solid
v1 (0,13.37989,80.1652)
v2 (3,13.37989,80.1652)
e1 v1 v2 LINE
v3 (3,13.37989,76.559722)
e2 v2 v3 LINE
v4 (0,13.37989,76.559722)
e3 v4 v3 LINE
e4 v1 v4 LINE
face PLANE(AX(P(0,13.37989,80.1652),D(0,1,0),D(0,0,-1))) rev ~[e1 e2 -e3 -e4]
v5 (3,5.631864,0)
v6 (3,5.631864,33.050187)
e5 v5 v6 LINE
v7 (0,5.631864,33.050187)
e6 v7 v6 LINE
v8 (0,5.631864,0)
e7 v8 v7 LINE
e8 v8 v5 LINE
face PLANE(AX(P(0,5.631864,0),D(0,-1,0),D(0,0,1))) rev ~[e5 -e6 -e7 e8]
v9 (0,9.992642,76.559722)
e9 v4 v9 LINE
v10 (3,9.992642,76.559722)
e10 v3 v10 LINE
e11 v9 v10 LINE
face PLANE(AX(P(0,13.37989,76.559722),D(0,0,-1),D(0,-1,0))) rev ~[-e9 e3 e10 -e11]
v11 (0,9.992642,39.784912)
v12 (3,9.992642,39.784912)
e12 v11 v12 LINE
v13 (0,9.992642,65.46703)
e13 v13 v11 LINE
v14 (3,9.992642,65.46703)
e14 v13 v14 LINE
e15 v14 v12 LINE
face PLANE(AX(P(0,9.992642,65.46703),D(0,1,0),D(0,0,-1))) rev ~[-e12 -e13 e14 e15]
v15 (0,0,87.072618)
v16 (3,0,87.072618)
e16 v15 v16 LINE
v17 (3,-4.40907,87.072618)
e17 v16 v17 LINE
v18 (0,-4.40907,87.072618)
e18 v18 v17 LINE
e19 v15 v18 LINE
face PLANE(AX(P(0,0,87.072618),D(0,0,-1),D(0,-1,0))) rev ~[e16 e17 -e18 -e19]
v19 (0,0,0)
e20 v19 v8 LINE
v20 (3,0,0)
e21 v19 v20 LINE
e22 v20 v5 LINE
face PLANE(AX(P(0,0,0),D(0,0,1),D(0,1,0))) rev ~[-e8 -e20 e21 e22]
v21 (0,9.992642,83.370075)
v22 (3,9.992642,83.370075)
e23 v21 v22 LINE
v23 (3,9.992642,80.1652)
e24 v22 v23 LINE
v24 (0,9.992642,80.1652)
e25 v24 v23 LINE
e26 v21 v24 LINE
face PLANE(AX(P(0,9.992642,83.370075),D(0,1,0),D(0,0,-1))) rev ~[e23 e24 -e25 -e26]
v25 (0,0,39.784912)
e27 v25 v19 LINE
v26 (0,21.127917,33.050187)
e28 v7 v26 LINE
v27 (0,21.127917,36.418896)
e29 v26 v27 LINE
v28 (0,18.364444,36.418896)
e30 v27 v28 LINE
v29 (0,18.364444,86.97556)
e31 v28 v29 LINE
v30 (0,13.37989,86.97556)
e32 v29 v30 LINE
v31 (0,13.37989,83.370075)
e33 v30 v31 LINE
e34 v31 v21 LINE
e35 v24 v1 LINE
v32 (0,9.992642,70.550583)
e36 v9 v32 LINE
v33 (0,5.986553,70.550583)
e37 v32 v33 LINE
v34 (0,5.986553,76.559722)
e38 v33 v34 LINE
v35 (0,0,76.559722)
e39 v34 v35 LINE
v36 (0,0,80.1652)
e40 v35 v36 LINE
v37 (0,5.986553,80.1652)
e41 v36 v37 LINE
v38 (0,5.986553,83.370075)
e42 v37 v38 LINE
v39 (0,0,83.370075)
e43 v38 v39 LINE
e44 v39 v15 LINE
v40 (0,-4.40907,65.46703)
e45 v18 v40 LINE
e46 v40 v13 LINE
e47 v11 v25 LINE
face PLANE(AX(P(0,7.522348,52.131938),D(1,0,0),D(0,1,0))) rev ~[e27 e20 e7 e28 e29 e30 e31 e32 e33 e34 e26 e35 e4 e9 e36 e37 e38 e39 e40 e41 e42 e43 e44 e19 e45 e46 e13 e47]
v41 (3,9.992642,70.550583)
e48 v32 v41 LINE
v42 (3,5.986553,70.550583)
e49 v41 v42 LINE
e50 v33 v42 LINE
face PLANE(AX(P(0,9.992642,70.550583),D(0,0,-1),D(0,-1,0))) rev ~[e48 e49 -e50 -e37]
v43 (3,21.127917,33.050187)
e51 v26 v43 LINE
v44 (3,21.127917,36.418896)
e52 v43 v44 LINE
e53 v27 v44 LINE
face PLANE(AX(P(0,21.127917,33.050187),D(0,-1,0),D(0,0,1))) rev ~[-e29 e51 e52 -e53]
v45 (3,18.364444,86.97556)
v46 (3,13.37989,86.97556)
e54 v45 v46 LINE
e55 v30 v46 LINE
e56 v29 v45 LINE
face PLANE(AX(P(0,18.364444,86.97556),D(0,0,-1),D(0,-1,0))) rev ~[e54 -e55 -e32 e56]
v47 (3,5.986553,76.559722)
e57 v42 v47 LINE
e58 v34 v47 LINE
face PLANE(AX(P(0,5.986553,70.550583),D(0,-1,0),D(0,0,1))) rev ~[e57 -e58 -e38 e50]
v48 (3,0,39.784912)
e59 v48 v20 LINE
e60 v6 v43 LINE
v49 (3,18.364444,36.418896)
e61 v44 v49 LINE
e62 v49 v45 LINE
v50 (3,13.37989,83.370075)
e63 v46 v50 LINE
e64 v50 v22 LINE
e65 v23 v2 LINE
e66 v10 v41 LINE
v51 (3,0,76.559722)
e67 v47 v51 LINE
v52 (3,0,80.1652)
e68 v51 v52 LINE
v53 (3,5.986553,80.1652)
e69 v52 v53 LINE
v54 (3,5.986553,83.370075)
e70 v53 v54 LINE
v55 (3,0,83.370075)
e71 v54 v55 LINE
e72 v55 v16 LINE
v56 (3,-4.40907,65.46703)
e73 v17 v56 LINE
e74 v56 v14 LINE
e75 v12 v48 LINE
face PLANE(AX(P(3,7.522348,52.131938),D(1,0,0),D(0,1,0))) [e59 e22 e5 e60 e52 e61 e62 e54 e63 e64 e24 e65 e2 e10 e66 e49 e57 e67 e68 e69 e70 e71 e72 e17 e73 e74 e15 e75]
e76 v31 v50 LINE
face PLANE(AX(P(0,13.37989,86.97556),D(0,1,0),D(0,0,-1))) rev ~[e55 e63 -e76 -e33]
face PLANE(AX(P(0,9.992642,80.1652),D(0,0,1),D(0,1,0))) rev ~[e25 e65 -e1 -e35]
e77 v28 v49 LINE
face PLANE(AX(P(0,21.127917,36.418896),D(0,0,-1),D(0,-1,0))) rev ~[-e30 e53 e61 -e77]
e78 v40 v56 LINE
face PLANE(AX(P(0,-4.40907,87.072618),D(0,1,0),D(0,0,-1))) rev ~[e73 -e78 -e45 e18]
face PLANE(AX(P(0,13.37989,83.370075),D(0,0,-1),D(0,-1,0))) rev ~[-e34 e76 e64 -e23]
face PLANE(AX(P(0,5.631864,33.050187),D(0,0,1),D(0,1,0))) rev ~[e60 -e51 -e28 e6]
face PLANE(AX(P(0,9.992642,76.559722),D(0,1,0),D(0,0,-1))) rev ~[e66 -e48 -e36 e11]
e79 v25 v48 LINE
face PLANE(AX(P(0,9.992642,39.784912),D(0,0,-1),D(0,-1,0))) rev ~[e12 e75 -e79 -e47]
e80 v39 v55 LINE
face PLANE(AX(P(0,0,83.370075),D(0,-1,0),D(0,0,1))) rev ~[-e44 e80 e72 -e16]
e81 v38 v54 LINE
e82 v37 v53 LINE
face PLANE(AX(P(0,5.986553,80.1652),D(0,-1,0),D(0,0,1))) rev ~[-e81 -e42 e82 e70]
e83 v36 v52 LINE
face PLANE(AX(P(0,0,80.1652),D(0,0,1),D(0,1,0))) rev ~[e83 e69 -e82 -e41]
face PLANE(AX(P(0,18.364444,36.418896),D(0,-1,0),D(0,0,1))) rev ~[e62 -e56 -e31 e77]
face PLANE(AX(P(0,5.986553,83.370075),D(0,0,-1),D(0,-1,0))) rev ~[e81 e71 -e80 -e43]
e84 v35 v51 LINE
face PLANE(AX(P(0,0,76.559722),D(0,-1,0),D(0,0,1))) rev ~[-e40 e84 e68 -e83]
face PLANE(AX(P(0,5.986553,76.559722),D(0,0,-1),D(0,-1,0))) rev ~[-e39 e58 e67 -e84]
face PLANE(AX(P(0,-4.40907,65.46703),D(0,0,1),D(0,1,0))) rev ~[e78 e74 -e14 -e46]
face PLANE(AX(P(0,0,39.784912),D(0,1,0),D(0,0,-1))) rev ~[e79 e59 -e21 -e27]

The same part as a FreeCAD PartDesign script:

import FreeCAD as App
import Part
import Sketcher
from FreeCAD import Vector

doc = App.newDocument("Part")
body = doc.addObject("PartDesign::Body", "Body")

sketch1 = doc.addObject("Sketcher::SketchObject", "Sketch")
body.addObject(sketch1)
sketch1.AttachmentSupport = (doc.YZ_Plane, [""])
sketch1.MapMode = "FlatFace"
sketch1.addGeometry(Part.LineSegment(Vector(0, 39.8, 0), Vector(0, 0, 0)), False)
sketch1.addGeometry(Part.LineSegment(Vector(0, 0, 0), Vector(5.6, 0, 0)), False)
sketch1.addGeometry(Part.LineSegment(Vector(5.6, 0, 0), Vector(5.6, 33.1, 0)), False)
sketch1.addGeometry(Part.LineSegment(Vector(5.6, 33.1, 0), Vector(21.1, 33.1, 0)), False)
sketch1.addGeometry(Part.LineSegment(Vector(21.1, 33.1, 0), Vector(21.1, 36.4, 0)), False)
sketch1.addGeometry(Part.LineSegment(Vector(21.1, 36.4, 0), Vector(18.4, 36.4, 0)), False)
sketch1.addGeometry(Part.LineSegment(Vector(18.4, 36.4, 0), Vector(18.4, 87, 0)), False)
sketch1.addGeometry(Part.LineSegment(Vector(18.4, 87, 0), Vector(13.4, 87, 0)), False)
sketch1.addGeometry(Part.LineSegment(Vector(13.4, 87, 0), Vector(13.4, 83.4, 0)), False)
sketch1.addGeometry(Part.LineSegment(Vector(13.4, 83.4, 0), Vector(10, 83.4, 0)), False)
sketch1.addGeometry(Part.LineSegment(Vector(10, 83.4, 0), Vector(10, 80.2, 0)), False)
sketch1.addGeometry(Part.LineSegment(Vector(10, 80.2, 0), Vector(13.4, 80.2, 0)), False)
sketch1.addGeometry(Part.LineSegment(Vector(13.4, 80.2, 0), Vector(13.4, 76.6, 0)), False)
sketch1.addGeometry(Part.LineSegment(Vector(13.4, 76.6, 0), Vector(10, 76.6, 0)), False)
sketch1.addGeometry(Part.LineSegment(Vector(10, 76.6, 0), Vector(10, 70.6, 0)), False)
sketch1.addGeometry(Part.LineSegment(Vector(10, 70.6, 0), Vector(6, 70.6, 0)), False)
sketch1.addGeometry(Part.LineSegment(Vector(6, 70.6, 0), Vector(6, 76.6, 0)), False)
sketch1.addGeometry(Part.LineSegment(Vector(6, 76.6, 0), Vector(0, 76.6, 0)), False)
sketch1.addGeometry(Part.LineSegment(Vector(0, 76.6, 0), Vector(0, 80.2, 0)), False)
sketch1.addGeometry(Part.LineSegment(Vector(0, 80.2, 0), Vector(6, 80.2, 0)), False)
sketch1.addGeometry(Part.LineSegment(Vector(6, 80.2, 0), Vector(6, 83.4, 0)), False)
sketch1.addGeometry(Part.LineSegment(Vector(6, 83.4, 0), Vector(0, 83.4, 0)), False)
sketch1.addGeometry(Part.LineSegment(Vector(0, 83.4, 0), Vector(0, 87.1, 0)), False)
sketch1.addGeometry(Part.LineSegment(Vector(0, 87.1, 0), Vector(-4.4, 87.1, 0)), False)
sketch1.addGeometry(Part.LineSegment(Vector(-4.4, 87.1, 0), Vector(-4.4, 65.5, 0)), False)
sketch1.addGeometry(Part.LineSegment(Vector(-4.4, 65.5, 0), Vector(10, 65.5, 0)), False)
sketch1.addGeometry(Part.LineSegment(Vector(10, 65.5, 0), Vector(10, 39.8, 0)), False)
sketch1.addGeometry(Part.LineSegment(Vector(10, 39.8, 0), Vector(0, 39.8, 0)), False)
sketch1.addConstraint(Sketcher.Constraint("Coincident", 0, 2, 1, 1))
sketch1.addConstraint(Sketcher.Constraint("Coincident", 1, 2, 2, 1))
sketch1.addConstraint(Sketcher.Constraint("Coincident", 2, 2, 3, 1))
sketch1.addConstraint(Sketcher.Constraint("Coincident", 3, 2, 4, 1))
sketch1.addConstraint(Sketcher.Constraint("Coincident", 4, 2, 5, 1))
sketch1.addConstraint(Sketcher.Constraint("Coincident", 5, 2, 6, 1))
sketch1.addConstraint(Sketcher.Constraint("Coincident", 6, 2, 7, 1))
sketch1.addConstraint(Sketcher.Constraint("Coincident", 7, 2, 8, 1))
sketch1.addConstraint(Sketcher.Constraint("Coincident", 8, 2, 9, 1))
sketch1.addConstraint(Sketcher.Constraint("Coincident", 9, 2, 10, 1))
sketch1.addConstraint(Sketcher.Constraint("Coincident", 10, 2, 11, 1))
sketch1.addConstraint(Sketcher.Constraint("Coincident", 11, 2, 12, 1))
sketch1.addConstraint(Sketcher.Constraint("Coincident", 12, 2, 13, 1))
sketch1.addConstraint(Sketcher.Constraint("Coincident", 13, 2, 14, 1))
sketch1.addConstraint(Sketcher.Constraint("Coincident", 14, 2, 15, 1))
sketch1.addConstraint(Sketcher.Constraint("Coincident", 15, 2, 16, 1))
sketch1.addConstraint(Sketcher.Constraint("Coincident", 16, 2, 17, 1))
sketch1.addConstraint(Sketcher.Constraint("Coincident", 17, 2, 18, 1))
sketch1.addConstraint(Sketcher.Constraint("Coincident", 18, 2, 19, 1))
sketch1.addConstraint(Sketcher.Constraint("Coincident", 19, 2, 20, 1))
sketch1.addConstraint(Sketcher.Constraint("Coincident", 20, 2, 21, 1))
sketch1.addConstraint(Sketcher.Constraint("Coincident", 21, 2, 22, 1))
sketch1.addConstraint(Sketcher.Constraint("Coincident", 22, 2, 23, 1))
sketch1.addConstraint(Sketcher.Constraint("Coincident", 23, 2, 24, 1))
sketch1.addConstraint(Sketcher.Constraint("Coincident", 24, 2, 25, 1))
sketch1.addConstraint(Sketcher.Constraint("Coincident", 25, 2, 26, 1))
sketch1.addConstraint(Sketcher.Constraint("Coincident", 26, 2, 27, 1))
sketch1.addConstraint(Sketcher.Constraint("Coincident", 27, 2, 0, 1))
sketch1.addConstraint(Sketcher.Constraint("Vertical", 0))
sketch1.addConstraint(Sketcher.Constraint("Horizontal", 1))
sketch1.addConstraint(Sketcher.Constraint("Vertical", 2))
sketch1.addConstraint(Sketcher.Constraint("Horizontal", 3))
sketch1.addConstraint(Sketcher.Constraint("Vertical", 4))
sketch1.addConstraint(Sketcher.Constraint("Horizontal", 5))
sketch1.addConstraint(Sketcher.Constraint("Vertical", 6))
sketch1.addConstraint(Sketcher.Constraint("Horizontal", 7))
sketch1.addConstraint(Sketcher.Constraint("Vertical", 8))
sketch1.addConstraint(Sketcher.Constraint("Horizontal", 9))
sketch1.addConstraint(Sketcher.Constraint("Vertical", 10))
sketch1.addConstraint(Sketcher.Constraint("Horizontal", 11))
sketch1.addConstraint(Sketcher.Constraint("Vertical", 12))
sketch1.addConstraint(Sketcher.Constraint("Horizontal", 13))
sketch1.addConstraint(Sketcher.Constraint("Vertical", 14))
sketch1.addConstraint(Sketcher.Constraint("Horizontal", 15))
sketch1.addConstraint(Sketcher.Constraint("Vertical", 16))
sketch1.addConstraint(Sketcher.Constraint("Horizontal", 17))
sketch1.addConstraint(Sketcher.Constraint("Vertical", 18))
sketch1.addConstraint(Sketcher.Constraint("Horizontal", 19))
sketch1.addConstraint(Sketcher.Constraint("Vertical", 20))
sketch1.addConstraint(Sketcher.Constraint("Horizontal", 21))
sketch1.addConstraint(Sketcher.Constraint("Vertical", 22))
sketch1.addConstraint(Sketcher.Constraint("Horizontal", 23))
sketch1.addConstraint(Sketcher.Constraint("Vertical", 24))
sketch1.addConstraint(Sketcher.Constraint("Horizontal", 25))
sketch1.addConstraint(Sketcher.Constraint("Vertical", 26))
sketch1.addConstraint(Sketcher.Constraint("Horizontal", 27))
sketch1.addConstraint(Sketcher.Constraint("Coincident", 0, 2, -1, 1))
sketch1.addConstraint(Sketcher.Constraint("PointOnObject", 17, 2, -2))
sketch1.addConstraint(Sketcher.Constraint("PointOnObject", 21, 2, -2))
sketch1.addConstraint(Sketcher.Constraint("Horizontal", 13, 2, 16, 2))
sketch1.addConstraint(Sketcher.Constraint("Horizontal", 11, 2, 18, 2))
sketch1.addConstraint(Sketcher.Constraint("Horizontal", 9, 2, 20, 2))
sketch1.addConstraint(Sketcher.Constraint("Vertical", 8, 2, 11, 2))
sketch1.addConstraint(Sketcher.Constraint("Vertical", 10, 2, 13, 2))
sketch1.addConstraint(Sketcher.Constraint("Vertical", 16, 2, 19, 2))
sketch1.addConstraint(Sketcher.Constraint("Vertical", 14, 2, 25, 2))
sketch1.addConstraint(Sketcher.Constraint("DistanceX", 15, 2, 15, 1, 4.006089))
sketch1.addConstraint(Sketcher.Constraint("DistanceX", 23, 2, 23, 1, 4.40907))
sketch1.addConstraint(Sketcher.Constraint("DistanceY", 0, 2, 0, 1, 39.784912))
sketch1.addConstraint(Sketcher.Constraint("DistanceY", 4, 1, 4, 2, 3.368709))
sketch1.addConstraint(Sketcher.Constraint("DistanceY", 12, 2, 12, 1, 3.605478))
sketch1.addConstraint(Sketcher.Constraint("DistanceY", 14, 2, 14, 1, 6.009139))
sketch1.addConstraint(Sketcher.Constraint("DistanceY", 24, 2, 24, 1, 21.605588))
sketch1.addConstraint(Sketcher.Constraint("DistanceY", -1, 1, 10, 2, 80.1652))
sketch1.addConstraint(Sketcher.Constraint("DistanceX", 9, 2, 6, 2, 8.371802))
sketch1.addConstraint(Sketcher.Constraint("DistanceX", 1, 1, 1, 2, 5.631864))
sketch1.addConstraint(Sketcher.Constraint("DistanceX", 3, 1, 3, 2, 15.496053))
sketch1.addConstraint(Sketcher.Constraint("DistanceX", 5, 2, 5, 1, 2.763473))
sketch1.addConstraint(Sketcher.Constraint("DistanceX", 7, 2, 7, 1, 4.984554))
sketch1.addConstraint(Sketcher.Constraint("DistanceY", 2, 1, 2, 2, 33.050187))
sketch1.addConstraint(Sketcher.Constraint("DistanceY", 6, 1, 6, 2, 50.556664))
sketch1.addConstraint(Sketcher.Constraint("DistanceY", 8, 2, 8, 1, 3.605485))
sketch1.addConstraint(Sketcher.Constraint("DistanceY", 22, 1, 22, 2, 3.702543))
pad1 = doc.addObject("PartDesign::Pad", "Pad")
body.addObject(pad1)
pad1.Profile = sketch1
pad1.Length = 3

doc.recompute()
